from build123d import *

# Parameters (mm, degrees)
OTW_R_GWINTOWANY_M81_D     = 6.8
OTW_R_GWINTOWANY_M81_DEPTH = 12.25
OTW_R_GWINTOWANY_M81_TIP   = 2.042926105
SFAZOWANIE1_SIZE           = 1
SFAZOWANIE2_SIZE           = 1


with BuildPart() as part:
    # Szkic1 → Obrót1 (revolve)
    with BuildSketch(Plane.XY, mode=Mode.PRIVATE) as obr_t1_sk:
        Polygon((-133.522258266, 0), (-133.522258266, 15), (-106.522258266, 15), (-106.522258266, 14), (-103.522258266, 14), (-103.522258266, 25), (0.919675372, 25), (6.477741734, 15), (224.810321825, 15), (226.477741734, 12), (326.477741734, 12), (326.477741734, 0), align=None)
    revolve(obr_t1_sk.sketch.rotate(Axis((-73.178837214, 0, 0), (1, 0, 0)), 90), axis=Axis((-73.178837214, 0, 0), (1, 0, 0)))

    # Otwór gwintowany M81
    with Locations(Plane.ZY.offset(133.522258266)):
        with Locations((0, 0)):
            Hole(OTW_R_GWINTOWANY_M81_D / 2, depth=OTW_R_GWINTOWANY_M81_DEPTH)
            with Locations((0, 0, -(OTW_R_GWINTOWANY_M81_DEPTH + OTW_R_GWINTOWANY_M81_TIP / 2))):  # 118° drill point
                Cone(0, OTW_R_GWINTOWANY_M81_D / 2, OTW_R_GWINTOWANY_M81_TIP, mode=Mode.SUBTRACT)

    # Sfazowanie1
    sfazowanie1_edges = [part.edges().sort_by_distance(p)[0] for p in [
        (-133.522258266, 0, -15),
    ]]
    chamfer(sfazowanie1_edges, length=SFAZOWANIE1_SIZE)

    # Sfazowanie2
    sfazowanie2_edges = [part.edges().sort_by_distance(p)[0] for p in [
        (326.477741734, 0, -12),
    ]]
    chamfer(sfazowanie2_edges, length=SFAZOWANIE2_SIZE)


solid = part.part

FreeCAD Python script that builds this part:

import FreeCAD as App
import Part
import Sketcher
from FreeCAD import Vector


def edges_at(feature, points):
    """Names of the edges that pass closest to the given points."""
    edges = feature.Shape.Edges
    near = lambda p: min(range(len(edges)), key=lambda i: edges[i].distToShape(Part.Vertex(*p))[0])
    return sorted({f"Edge{near(p) + 1}" for p in points})

doc = App.newDocument("Part")
params = doc.addObject("Spreadsheet::Sheet", "Params")
for row, (alias, value) in enumerate([
    ("sketch1_width", "460 mm"),
    ("sketch1_width2", "100 mm"),
    ("sketch1_width3", "3 mm"),
    ("sketch1_width4", "27 mm"),
    ("sketch1_height", "15 mm"),
    ("revolution_angle", "360 deg"),
    ("sketch2_diameter", "6.8 mm"),
    ("hole_diameter", "6.8 mm"),
    ("hole_depth", "12.25 mm"),
    ("chamfer_size", "1 mm"),
    ("chamfer2_size", "1 mm"),
], start=1):
    params.set(f"A{row}", alias)
    params.set(f"B{row}", "=" + value)
    params.setAlias(f"B{row}", alias)

body = doc.addObject("PartDesign::Body", "Body")

# Sketch on XY plane
sketch1 = body.newObject("Sketcher::SketchObject", "Sketch")
sketch1.AttachmentSupport = (doc.getObject("XY_Plane"), [""])
sketch1.MapMode = "FlatFace"
sketch1.addGeometry([
    Part.LineSegment(Vector(-133.5, 15, 0), Vector(-133.5, 0, 0)),  # 0
    Part.LineSegment(Vector(-133.5, 0, 0), Vector(326.5, 0, 0)),  # 1
    Part.LineSegment(Vector(326.5, 0, 0), Vector(326.5, 12, 0)),  # 2
    Part.LineSegment(Vector(326.5, 12, 0), Vector(226.5, 12, 0)),  # 3
    Part.LineSegment(Vector(226.5, 12, 0), Vector(224.8, 15, 0)),  # 4
    Part.LineSegment(Vector(224.8, 15, 0), Vector(6.5, 15, 0)),  # 5
    Part.LineSegment(Vector(6.5, 15, 0), Vector(0.9, 25, 0)),  # 6
    Part.LineSegment(Vector(0.9, 25, 0), Vector(-103.5, 25, 0)),  # 7
    Part.LineSegment(Vector(-103.5, 25, 0), Vector(-103.5, 14, 0)),  # 8
    Part.LineSegment(Vector(-103.5, 14, 0), Vector(-106.5, 14, 0)),  # 9
    Part.LineSegment(Vector(-106.5, 14, 0), Vector(-106.5, 15, 0)),  # 10
    Part.LineSegment(Vector(-106.5, 15, 0), Vector(-133.5, 15, 0)),  # 11
], False)
sketch1.addConstraint([
    Sketcher.Constraint("Coincident", 0, 2, 1, 1),
    Sketcher.Constraint("Coincident", 1, 2, 2, 1),
    Sketcher.Constraint("Coincident", 2, 2, 3, 1),
    Sketcher.Constraint("Coincident", 3, 2, 4, 1),
    Sketcher.Constraint("Coincident", 4, 2, 5, 1),
    Sketcher.Constraint("Coincident", 5, 2, 6, 1),
    Sketcher.Constraint("Coincident", 6, 2, 7, 1),
    Sketcher.Constraint("Coincident", 7, 2, 8, 1),
    Sketcher.Constraint("Coincident", 8, 2, 9, 1),
    Sketcher.Constraint("Coincident", 9, 2, 10, 1),
    Sketcher.Constraint("Coincident", 10, 2, 11, 1),
    Sketcher.Constraint("Coincident", 11, 2, 0, 1),
    Sketcher.Constraint("Vertical", 0),
    Sketcher.Constraint("Horizontal", 1),
    Sketcher.Constraint("Vertical", 2),
    Sketcher.Constraint("Horizontal", 3),
    Sketcher.Constraint("Horizontal", 5),
    Sketcher.Constraint("Horizontal", 7),
    Sketcher.Constraint("Vertical", 8),
    Sketcher.Constraint("Horizontal", 9),
    Sketcher.Constraint("Vertical", 10),
    Sketcher.Constraint("Horizontal", 11),
    Sketcher.Constraint("PointOnObject", 0, 2, -1),
    Sketcher.Constraint("Parallel", 4, 6),
    Sketcher.Constraint("Horizontal", 5, 2, 10, 2),
    Sketcher.Constraint("DistanceX", 1, 1, 1, 2, 460.0),
    Sketcher.Constraint("DistanceX", 3, 2, 3, 1, 100.0),
    Sketcher.Constraint("DistanceX", 9, 2, 9, 1, 3.0),
    Sketcher.Constraint("DistanceX", 11, 2, 11, 1, 27.0),
    Sketcher.Constraint("DistanceY", 0, 2, 0, 1, 15.0),
    Sketcher.Constraint("DistanceY", 2, 1, 2, 2, 12.0),
    Sketcher.Constraint("DistanceY", 8, 2, 8, 1, 11.0),
    Sketcher.Constraint("DistanceY", 10, 1, 10, 2, 1.0),
    Sketcher.Constraint("DistanceX", 0, 2, 5, 2, 140.0),
    Sketcher.Constraint("DistanceX", 5, 2, 5, 1, 218.33258),
    Sketcher.Constraint("DistanceX", 0, 2, -1, 1, 133.522258),
])
sketch1.setExpression("Constraints[25]", "Params.sketch1_width")
sketch1.setExpression("Constraints[26]", "Params.sketch1_width2")
sketch1.setExpression("Constraints[27]", "Params.sketch1_width3")
sketch1.setExpression("Constraints[28]", "Params.sketch1_width4")
sketch1.setExpression("Constraints[29]", "Params.sketch1_height")
revolution = body.newObject("PartDesign::Revolution", "Revolution")
revolution.Profile = sketch1
revolution.ReferenceAxis = (sketch1, ["H_Axis"])
revolution.setExpression("Angle", "Params.revolution_angle")

# Sketch on YZ plane
sketch2 = body.newObject("Sketcher::SketchObject", "Sketch001")
sketch2.AttachmentSupport = (doc.getObject("YZ_Plane"), [""])
sketch2.MapMode = "FlatFace"
sketch2.AttachmentOffset = App.Placement(Vector(0, 0, -133.522258), App.Rotation())
sketch2.addGeometry(Part.Circle(Vector(0, 0, 0), Vector(0, 0, 1), 3.4), False)
sketch2.addConstraint([
    Sketcher.Constraint("Coincident", 0, 3, -1, 1),
    Sketcher.Constraint("Diameter", 0, 6.8),
])
sketch2.setExpression("Constraints[1]", "Params.sketch2_diameter")
doc.recompute()
hole = body.newObject("PartDesign::Hole", "Hole")
hole.Profile = sketch2
hole.ThreadType = "None"
hole.setExpression("Diameter", "Params.hole_diameter")
hole.DepthType = "Dimension"
hole.setExpression("Depth", "Params.hole_depth")
hole.DrillPoint = "Angled"
hole.DrillPointAngle = 118
hole.Reversed = True
doc.recompute()

chamfer = body.newObject("PartDesign::Chamfer", "Chamfer")
chamfer.Base = (hole, edges_at(hole, [(-133.522, 0, -15)]))
chamfer.setExpression("Size", "Params.chamfer_size")
doc.recompute()

chamfer2 = body.newObject("PartDesign::Chamfer", "Chamfer001")
chamfer2.Base = (chamfer, edges_at(chamfer, [(326.478, 0, -12)]))
chamfer2.setExpression("Size", "Params.chamfer2_size")

doc.recompute()
